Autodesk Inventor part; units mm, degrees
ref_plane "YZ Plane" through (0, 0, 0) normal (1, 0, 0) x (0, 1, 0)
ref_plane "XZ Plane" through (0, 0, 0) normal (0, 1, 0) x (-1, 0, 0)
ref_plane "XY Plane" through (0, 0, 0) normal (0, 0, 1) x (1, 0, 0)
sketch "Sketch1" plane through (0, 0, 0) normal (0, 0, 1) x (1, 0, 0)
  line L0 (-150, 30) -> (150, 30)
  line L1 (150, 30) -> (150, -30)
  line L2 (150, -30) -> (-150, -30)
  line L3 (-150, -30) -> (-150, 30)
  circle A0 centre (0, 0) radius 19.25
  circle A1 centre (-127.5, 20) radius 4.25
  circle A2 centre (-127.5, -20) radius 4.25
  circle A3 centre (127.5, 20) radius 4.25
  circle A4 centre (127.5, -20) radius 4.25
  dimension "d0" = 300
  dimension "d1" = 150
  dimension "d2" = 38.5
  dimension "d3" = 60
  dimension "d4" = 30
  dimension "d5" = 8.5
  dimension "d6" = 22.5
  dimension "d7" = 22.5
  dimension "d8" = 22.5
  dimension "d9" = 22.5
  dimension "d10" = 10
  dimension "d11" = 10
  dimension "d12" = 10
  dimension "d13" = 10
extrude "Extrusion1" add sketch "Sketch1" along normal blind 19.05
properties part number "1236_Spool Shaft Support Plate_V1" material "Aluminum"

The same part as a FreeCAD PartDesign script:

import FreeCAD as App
import Part
import Sketcher

V = App.Vector
Q = App.Units.Quantity


def add_polygon(sketch, points):
    """Adds a closed chain of lines whose ends are joined by coincident constraints."""
    first, n = sketch.GeometryCount, len(points)
    for a, b in zip(points, points[1:] + points[:1]):
        sketch.addGeometry(Part.LineSegment(App.Vector(*a, 0), App.Vector(*b, 0)), False)
    for i in range(n):
        sketch.addConstraint(Sketcher.Constraint("Coincident", first + i, 2, first + (i + 1) % n, 1))

doc = App.newDocument("Part")
body = doc.addObject("PartDesign::Body", "Body")

sketch1 = doc.addObject("Sketcher::SketchObject", "Sketch")
body.addObject(sketch1)
sketch1.AttachmentSupport = (doc.XY_Plane, [""])
sketch1.MapMode = "FlatFace"
add_polygon(sketch1, [(150, 30), (-150, 30), (-150, -30), (150, -30)])
sketch1.addGeometry(Part.Circle(V(-127.5, -20, 0), V(0, 0, 1), 4.25), False)
sketch1.addGeometry(Part.Circle(V(127.5, -20, 0), V(0, 0, 1), 4.25), False)
sketch1.addGeometry(Part.Circle(V(-127.5, 20, 0), V(0, 0, 1), 4.25), False)
sketch1.addGeometry(Part.Circle(V(0, 0, 0), V(0, 0, 1), 19.25), False)
sketch1.addGeometry(Part.Circle(V(127.5, 20, 0), V(0, 0, 1), 4.25), False)
sketch1.addConstraint(Sketcher.Constraint("Horizontal", 0))
sketch1.addConstraint(Sketcher.Constraint("Vertical", 1))
sketch1.addConstraint(Sketcher.Constraint("Horizontal", 2))
sketch1.addConstraint(Sketcher.Constraint("Vertical", 3))
sketch1.addConstraint(Sketcher.Constraint("Coincident", 7, 3, -1, 1))
sketch1.addConstraint(Sketcher.Constraint("Equal", 4, 5))
sketch1.addConstraint(Sketcher.Constraint("Equal", 5, 6))
sketch1.addConstraint(Sketcher.Constraint("Equal", 6, 8))
sketch1.addConstraint(Sketcher.Constraint("Symmetric", 5, 3, 6, 3, -1, 1))
sketch1.addConstraint(Sketcher.Constraint("Symmetric", 4, 3, 8, 3, -1, 1))
sketch1.addConstraint(Sketcher.Constraint("Symmetric", 0, 2, 2, 2, -1, 1))
sketch1.addConstraint(Sketcher.Constraint("Symmetric", 4, 3, 5, 3, -2))
sketch1.addConstraint(Sketcher.Constraint("Diameter", 4, Q("8.5 mm")))
sketch1.addConstraint(Sketcher.Constraint("Diameter", 7, Q("38.5 mm")))
sketch1.addConstraint(Sketcher.Constraint("DistanceX", 0, 2, 0, 1, Q("300 mm")))
sketch1.addConstraint(Sketcher.Constraint("DistanceY", 1, 2, 1, 1, Q("60 mm")))
sketch1.addConstraint(Sketcher.Constraint("DistanceY", 6, 3, 0, 2, Q("10 mm")))
sketch1.addConstraint(Sketcher.Constraint("DistanceX", 0, 2, 6, 3, Q("22.5 mm")))
pad1 = doc.addObject("PartDesign::Pad", "Pad")
body.addObject(pad1)
pad1.Profile = sketch1
pad1.Length = 19.05

doc.recompute()
